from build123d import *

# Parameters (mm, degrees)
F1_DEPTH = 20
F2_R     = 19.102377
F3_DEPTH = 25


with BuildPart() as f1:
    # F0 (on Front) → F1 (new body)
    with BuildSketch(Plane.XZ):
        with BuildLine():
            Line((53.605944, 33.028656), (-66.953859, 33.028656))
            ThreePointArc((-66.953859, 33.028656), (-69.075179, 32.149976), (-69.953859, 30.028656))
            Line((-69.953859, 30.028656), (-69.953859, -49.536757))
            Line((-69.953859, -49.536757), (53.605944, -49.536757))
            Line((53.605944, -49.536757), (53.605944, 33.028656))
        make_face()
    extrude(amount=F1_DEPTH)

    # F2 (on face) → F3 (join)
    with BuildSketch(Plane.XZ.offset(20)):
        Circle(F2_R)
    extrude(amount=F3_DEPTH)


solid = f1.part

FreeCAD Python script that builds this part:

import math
import FreeCAD as App
import Part
import Sketcher

V = App.Vector

doc = App.newDocument("Part")
params = doc.addObject("Spreadsheet::Sheet", "Params")
for row, (alias, value) in enumerate([
    ("sketch1_radius", "3.000001 mm"),
    ("pad1_length", "20 mm"),
    ("pad2_length", "25 mm"),
], start=1):
    params.set(f"A{row}", alias)
    params.set(f"B{row}", "=" + value)
    params.setAlias(f"B{row}", alias)

body = doc.addObject("PartDesign::Body", "Body")

# Sketch on XZ plane
sketch1 = body.newObject("Sketcher::SketchObject", "Sketch")
sketch1.AttachmentSupport = (doc.getObject("XZ_Plane"), [""])
sketch1.MapMode = "FlatFace"
sketch1.addGeometry([
    Part.LineSegment(V(53.605944, 33.028656, 0), V(-66.953859, 33.028656, 0)),  # 0
    Part.ArcOfCircle(Part.Circle(V(-66.953858, 30.028655, 0), V(0, 0, 1), 3.000001), math.radians(90.000022), math.radians(179.999978)),  # 1
    Part.LineSegment(V(-69.953859, 30.028656, 0), V(-69.953859, -49.536757, 0)),  # 2
    Part.LineSegment(V(-69.953859, -49.536757, 0), V(53.605944, -49.536757, 0)),  # 3
    Part.LineSegment(V(53.605944, -49.536757, 0), V(53.605944, 33.028656, 0)),  # 4
], False)
sketch1.addConstraint([
    Sketcher.Constraint("Tangent", 0, 2, 1, 1),
    Sketcher.Constraint("Tangent", 1, 2, 2, 1),
    Sketcher.Constraint("Coincident", 2, 2, 3, 1),
    Sketcher.Constraint("Coincident", 3, 2, 4, 1),
    Sketcher.Constraint("Coincident", 4, 2, 0, 1),
    Sketcher.Constraint("Horizontal", 0),
    Sketcher.Constraint("Vertical", 2),
    Sketcher.Constraint("Horizontal", 3),
    Sketcher.Constraint("Vertical", 4),
    Sketcher.Constraint("Radius", 1, 3.000001),
    Sketcher.Constraint("DistanceX", 1, 3, 3, 2, 120.559802),
    Sketcher.Constraint("DistanceY", 2, 2, 2, 1, 79.565413),
    Sketcher.Constraint("DistanceX", 0, 2, -1, 1, 66.953859),
    Sketcher.Constraint("DistanceY", -1, 1, 1, 3, 30.028655),
])
sketch1.setExpression("Constraints[9]", "Params.sketch1_radius")
pad1 = body.newObject("PartDesign::Pad", "Pad")
pad1.Profile = sketch1
pad1.setExpression("Length", "Params.pad1_length")

# Sketch on XZ plane
sketch2 = body.newObject("Sketcher::SketchObject", "Sketch001")
sketch2.AttachmentSupport = (doc.getObject("XZ_Plane"), [""])
sketch2.MapMode = "FlatFace"
sketch2.AttachmentOffset = App.Placement(V(0, 0, 20), App.Rotation())
sketch2.addGeometry(Part.Circle(V(0, 0, 0), V(0, 0, 1), 19.102377), False)
sketch2.addConstraint([
    Sketcher.Constraint("Coincident", 0, 3, -1, 1),
    Sketcher.Constraint("Diameter", 0, 38.204754),
])
pad2 = body.newObject("PartDesign::Pad", "Pad001")
pad2.Profile = sketch2
pad2.setExpression("Length", "Params.pad2_length")

doc.recompute()
